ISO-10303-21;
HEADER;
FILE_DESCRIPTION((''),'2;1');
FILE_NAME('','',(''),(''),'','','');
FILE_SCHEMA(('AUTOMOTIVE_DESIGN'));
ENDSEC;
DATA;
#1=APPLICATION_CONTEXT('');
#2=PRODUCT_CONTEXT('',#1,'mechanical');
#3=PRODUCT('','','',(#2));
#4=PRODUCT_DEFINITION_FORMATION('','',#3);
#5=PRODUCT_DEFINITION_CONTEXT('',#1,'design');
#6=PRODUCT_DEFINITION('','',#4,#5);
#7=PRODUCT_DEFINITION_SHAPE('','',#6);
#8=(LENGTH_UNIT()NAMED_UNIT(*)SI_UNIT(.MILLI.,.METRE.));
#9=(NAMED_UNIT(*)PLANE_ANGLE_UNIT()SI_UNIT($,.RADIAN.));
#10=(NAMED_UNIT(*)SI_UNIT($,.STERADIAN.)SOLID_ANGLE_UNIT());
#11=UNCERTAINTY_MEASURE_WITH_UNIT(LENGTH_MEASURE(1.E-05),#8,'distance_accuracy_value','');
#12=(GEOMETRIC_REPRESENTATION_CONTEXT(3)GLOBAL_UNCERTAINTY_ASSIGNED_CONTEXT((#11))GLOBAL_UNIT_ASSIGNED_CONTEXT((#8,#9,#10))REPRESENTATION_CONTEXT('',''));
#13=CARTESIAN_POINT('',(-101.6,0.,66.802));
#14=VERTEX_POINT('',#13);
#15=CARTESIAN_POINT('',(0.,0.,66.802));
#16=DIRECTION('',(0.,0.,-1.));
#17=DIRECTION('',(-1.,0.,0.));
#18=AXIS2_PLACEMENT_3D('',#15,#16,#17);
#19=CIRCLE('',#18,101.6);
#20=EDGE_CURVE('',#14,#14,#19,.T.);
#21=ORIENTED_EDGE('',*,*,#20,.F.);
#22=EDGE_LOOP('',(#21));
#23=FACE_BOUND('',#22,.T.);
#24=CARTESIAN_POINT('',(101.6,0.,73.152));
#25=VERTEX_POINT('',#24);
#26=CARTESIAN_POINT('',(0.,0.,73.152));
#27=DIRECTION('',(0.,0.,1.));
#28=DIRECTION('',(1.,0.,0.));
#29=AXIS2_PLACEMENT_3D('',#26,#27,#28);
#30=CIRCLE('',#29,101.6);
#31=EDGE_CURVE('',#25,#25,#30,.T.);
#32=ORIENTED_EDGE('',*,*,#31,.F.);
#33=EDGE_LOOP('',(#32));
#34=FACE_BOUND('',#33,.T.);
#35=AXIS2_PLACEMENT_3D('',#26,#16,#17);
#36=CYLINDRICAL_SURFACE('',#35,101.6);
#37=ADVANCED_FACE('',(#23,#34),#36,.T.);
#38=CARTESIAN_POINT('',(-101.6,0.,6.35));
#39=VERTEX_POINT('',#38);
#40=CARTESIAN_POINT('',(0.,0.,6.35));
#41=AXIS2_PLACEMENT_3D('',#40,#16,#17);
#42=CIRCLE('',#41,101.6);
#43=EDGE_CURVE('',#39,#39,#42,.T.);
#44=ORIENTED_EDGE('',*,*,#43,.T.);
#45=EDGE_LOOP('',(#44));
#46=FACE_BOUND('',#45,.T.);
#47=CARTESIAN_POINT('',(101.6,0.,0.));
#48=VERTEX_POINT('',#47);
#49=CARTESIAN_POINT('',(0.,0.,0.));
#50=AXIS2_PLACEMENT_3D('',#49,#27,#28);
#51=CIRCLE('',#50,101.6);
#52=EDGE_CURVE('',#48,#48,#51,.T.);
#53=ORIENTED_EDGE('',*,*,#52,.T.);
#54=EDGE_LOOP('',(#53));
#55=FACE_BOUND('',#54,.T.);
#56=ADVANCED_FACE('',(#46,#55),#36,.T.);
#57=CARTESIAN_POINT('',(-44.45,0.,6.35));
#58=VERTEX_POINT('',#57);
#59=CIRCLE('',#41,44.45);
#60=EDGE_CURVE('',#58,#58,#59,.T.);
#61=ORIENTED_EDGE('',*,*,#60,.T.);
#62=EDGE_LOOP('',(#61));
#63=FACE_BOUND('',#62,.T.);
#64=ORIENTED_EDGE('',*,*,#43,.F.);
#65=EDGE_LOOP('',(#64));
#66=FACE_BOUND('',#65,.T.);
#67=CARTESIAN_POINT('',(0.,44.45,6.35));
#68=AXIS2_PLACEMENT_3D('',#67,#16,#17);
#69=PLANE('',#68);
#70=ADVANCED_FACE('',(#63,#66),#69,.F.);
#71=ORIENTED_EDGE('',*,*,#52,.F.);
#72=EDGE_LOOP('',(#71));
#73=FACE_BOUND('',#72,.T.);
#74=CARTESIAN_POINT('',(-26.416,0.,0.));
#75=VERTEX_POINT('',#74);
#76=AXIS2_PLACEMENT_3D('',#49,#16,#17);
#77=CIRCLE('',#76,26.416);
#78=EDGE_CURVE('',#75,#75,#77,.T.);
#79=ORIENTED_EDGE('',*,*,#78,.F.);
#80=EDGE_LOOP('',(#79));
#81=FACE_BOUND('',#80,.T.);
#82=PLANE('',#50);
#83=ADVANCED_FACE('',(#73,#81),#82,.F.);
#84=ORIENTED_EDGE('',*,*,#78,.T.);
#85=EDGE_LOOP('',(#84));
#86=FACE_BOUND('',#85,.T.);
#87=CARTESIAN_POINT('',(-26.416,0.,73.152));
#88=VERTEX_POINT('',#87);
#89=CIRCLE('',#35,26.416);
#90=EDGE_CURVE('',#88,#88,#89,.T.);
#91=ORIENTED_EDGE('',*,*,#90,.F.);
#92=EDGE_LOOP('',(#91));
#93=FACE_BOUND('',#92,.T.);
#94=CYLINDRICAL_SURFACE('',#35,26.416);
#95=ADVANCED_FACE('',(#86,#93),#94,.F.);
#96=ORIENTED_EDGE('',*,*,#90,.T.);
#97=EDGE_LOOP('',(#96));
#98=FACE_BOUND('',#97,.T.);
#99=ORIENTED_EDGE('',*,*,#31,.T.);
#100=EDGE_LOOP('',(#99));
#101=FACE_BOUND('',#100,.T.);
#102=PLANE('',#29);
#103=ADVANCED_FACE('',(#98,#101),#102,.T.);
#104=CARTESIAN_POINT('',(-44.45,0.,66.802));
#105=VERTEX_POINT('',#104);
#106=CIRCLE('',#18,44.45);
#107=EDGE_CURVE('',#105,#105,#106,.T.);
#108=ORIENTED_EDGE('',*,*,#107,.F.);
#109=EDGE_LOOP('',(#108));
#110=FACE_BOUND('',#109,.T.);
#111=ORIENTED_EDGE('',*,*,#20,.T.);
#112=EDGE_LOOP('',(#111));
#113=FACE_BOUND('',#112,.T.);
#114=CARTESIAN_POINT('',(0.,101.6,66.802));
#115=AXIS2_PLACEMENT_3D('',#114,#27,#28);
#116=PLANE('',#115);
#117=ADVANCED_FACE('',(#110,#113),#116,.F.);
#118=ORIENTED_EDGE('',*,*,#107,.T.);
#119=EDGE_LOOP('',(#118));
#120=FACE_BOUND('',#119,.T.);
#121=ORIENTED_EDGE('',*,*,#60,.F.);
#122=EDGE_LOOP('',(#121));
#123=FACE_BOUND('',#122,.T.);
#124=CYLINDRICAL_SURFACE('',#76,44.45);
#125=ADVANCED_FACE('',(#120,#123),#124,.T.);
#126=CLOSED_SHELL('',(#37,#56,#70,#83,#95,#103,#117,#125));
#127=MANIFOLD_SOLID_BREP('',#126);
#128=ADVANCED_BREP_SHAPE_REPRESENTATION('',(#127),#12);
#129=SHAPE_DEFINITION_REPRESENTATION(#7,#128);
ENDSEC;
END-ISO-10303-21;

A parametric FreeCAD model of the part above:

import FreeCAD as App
import Part
import Sketcher
from FreeCAD import Vector
Q = App.Units.Quantity

doc = App.newDocument("Part")
body = doc.addObject("PartDesign::Body", "Body")

# Sketch on XY plane
sketch1 = body.newObject("Sketcher::SketchObject", "Sketch")
sketch1.AttachmentSupport = (doc.getObject("XY_Plane"), [""])
sketch1.MapMode = "FlatFace"
sketch1.addGeometry(Part.Circle(Vector(0, 0, 0), Vector(0, 0, 1), 102), False)
sketch1.addConstraint([
    Sketcher.Constraint("Coincident", 0, 3, -1, 1),
    Sketcher.Constraint("Diameter", 0, Q("8 in")),
])
pad1 = body.newObject("PartDesign::Pad", "Pad")
pad1.Profile = sketch1
pad1.Length = Q("2.88 in")

# Sketch on YZ plane
sketch2 = body.newObject("Sketcher::SketchObject", "Sketch001")
sketch2.AttachmentSupport = (doc.getObject("YZ_Plane"), [""])
sketch2.MapMode = "FlatFace"
sketch2.addGeometry([
    Part.LineSegment(Vector(102, 67, 0), Vector(44, 67, 0)),
    Part.LineSegment(Vector(44, 67, 0), Vector(44, 6, 0)),
    Part.LineSegment(Vector(44, 6, 0), Vector(102, 6, 0)),
    Part.LineSegment(Vector(102, 6, 0), Vector(102, 67, 0)),
], False)
sketch2.addConstraint([
    Sketcher.Constraint("Coincident", 0, 2, 1, 1),
    Sketcher.Constraint("Coincident", 1, 2, 2, 1),
    Sketcher.Constraint("Coincident", 2, 2, 3, 1),
    Sketcher.Constraint("Coincident", 3, 2, 0, 1),
    Sketcher.Constraint("Horizontal", 0),
    Sketcher.Constraint("Vertical", 1),
    Sketcher.Constraint("Horizontal", 2),
    Sketcher.Constraint("Vertical", 3),
    Sketcher.Constraint("DistanceX", -1, 1, 2, 2, Q("4 in")),
    Sketcher.Constraint("DistanceX", 0, 2, 0, 1, Q("2.25 in")),
    Sketcher.Constraint("DistanceY", 1, 2, 1, 1, Q("2.38 in")),
    Sketcher.Constraint("DistanceY", -1, 1, 0, 2, Q("2.63 in")),
])
groove = body.newObject("PartDesign::Groove", "Groove")
groove.Profile = sketch2
groove.ReferenceAxis = (sketch2, ["V_Axis"])
groove.Angle = 360

# Sketch on XY plane
sketch3 = body.newObject("Sketcher::SketchObject", "Sketch002")
sketch3.AttachmentSupport = (doc.getObject("XY_Plane"), [""])
sketch3.MapMode = "FlatFace"
sketch3.addGeometry(Part.Circle(Vector(0, 0, 0), Vector(0, 0, 1), 26), False)
sketch3.addConstraint([
    Sketcher.Constraint("Coincident", 0, 3, -1, 1),
    Sketcher.Constraint("Diameter", 0, Q("2.08 in")),
])
pocket1 = body.newObject("PartDesign::Pocket", "Pocket")
pocket1.Profile = sketch3
pocket1.Length = Q("2.88 in")
pocket1.Reversed = True

doc.recompute()
